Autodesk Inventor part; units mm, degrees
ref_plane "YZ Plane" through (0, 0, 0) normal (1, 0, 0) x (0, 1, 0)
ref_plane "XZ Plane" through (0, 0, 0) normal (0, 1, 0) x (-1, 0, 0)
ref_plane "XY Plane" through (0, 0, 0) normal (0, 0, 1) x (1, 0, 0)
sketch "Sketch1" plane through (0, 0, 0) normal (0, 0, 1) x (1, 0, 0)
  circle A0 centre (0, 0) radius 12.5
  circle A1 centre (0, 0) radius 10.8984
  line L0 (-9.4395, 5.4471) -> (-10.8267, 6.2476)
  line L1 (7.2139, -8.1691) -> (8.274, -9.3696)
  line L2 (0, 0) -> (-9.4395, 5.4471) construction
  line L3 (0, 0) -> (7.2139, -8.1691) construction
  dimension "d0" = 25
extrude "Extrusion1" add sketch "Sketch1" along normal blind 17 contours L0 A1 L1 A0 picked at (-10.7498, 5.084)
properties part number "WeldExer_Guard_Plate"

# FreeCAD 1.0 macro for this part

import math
import FreeCAD as App
import Part
import Sketcher

doc = App.newDocument("Part")
body = doc.addObject("PartDesign::Body", "Body")

# Sketch on XY plane
sketch1 = doc.addObject("Sketcher::SketchObject", "Sketch")
body.addObject(sketch1)
sketch1.AttachmentSupport = (doc.XY_Plane, [""])
sketch1.MapMode = "FlatFace"
sketch1.addGeometry([
    Part.LineSegment(App.Vector(-9.4395, 5.4471, 0), App.Vector(-10.8267, 6.2476, 0)),
    Part.ArcOfCircle(Part.Circle(App.Vector(0, 0, 0), App.Vector(0, 0, 1), 12.5), math.radians(150.012695), math.radians(311.446714)),
    Part.LineSegment(App.Vector(8.274, -9.3696, 0), App.Vector(7.2139, -8.1691, 0)),
    Part.ArcOfCircle(Part.Circle(App.Vector(0, 0, 0), App.Vector(0, 0, 1), 10.8984), math.radians(150.012738), math.radians(311.446808)),
], False)
sketch1.addConstraint([
    Sketcher.Constraint("Coincident", 0, 2, 1, 1),
    Sketcher.Constraint("Coincident", 1, 2, 2, 1),
    Sketcher.Constraint("Coincident", 2, 2, 3, 2),
    Sketcher.Constraint("Coincident", 3, 1, 0, 1),
    Sketcher.Constraint("Coincident", 1, 3, -1, 1),
    Sketcher.Constraint("Coincident", 3, 3, -1, 1),
    Sketcher.Constraint("Radius", 1, 12.5),
    Sketcher.Constraint("Radius", 3, 10.8984),
    Sketcher.Constraint("DistanceX", -1, 1, 1, 2, 8.274),
    Sketcher.Constraint("DistanceX", -1, 1, 2, 2, 7.214),
    Sketcher.Constraint("DistanceY", -1, 1, 3, 1, 5.447),
    Sketcher.Constraint("DistanceX", 0, 2, -1, 1, 10.8267),
])
pad1 = doc.addObject("PartDesign::Pad", "Pad")
body.addObject(pad1)
pad1.Profile = sketch1
pad1.Length = 17

doc.recompute()
